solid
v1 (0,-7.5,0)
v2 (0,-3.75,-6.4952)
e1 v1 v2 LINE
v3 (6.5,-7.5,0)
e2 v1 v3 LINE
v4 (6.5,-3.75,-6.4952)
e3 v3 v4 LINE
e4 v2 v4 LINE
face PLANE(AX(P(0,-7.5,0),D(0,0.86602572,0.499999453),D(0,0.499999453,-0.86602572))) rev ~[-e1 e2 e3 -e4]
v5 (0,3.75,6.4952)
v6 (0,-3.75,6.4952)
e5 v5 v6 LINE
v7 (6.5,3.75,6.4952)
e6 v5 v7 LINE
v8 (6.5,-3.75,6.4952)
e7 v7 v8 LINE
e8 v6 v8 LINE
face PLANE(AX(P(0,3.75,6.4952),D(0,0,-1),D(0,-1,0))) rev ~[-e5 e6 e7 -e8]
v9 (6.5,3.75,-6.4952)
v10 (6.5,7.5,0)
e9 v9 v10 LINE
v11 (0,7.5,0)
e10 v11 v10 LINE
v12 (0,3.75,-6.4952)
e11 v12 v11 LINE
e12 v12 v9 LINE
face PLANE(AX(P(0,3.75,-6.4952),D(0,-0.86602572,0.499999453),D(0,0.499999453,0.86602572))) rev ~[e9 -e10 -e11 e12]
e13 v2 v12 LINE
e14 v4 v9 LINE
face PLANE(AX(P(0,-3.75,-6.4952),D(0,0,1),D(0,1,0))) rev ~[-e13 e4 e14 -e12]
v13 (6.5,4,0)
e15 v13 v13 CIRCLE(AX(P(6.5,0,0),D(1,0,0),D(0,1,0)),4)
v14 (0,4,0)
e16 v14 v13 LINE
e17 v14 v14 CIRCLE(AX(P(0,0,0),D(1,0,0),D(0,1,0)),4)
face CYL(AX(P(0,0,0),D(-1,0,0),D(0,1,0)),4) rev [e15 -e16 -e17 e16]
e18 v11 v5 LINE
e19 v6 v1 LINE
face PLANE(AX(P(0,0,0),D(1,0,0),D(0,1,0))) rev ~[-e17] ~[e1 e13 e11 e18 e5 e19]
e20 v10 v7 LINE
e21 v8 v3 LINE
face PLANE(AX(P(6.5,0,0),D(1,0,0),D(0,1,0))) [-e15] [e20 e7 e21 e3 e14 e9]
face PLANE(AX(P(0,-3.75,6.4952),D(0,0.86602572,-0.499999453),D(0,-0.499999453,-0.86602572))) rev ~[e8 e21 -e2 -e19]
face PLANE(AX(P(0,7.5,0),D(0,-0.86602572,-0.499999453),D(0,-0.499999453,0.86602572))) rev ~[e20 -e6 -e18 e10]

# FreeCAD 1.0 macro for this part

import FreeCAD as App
import Part
import Sketcher
from FreeCAD import Vector
Q = App.Units.Quantity


def add_polygon(sketch, points):
    """Adds a closed chain of lines whose ends are joined by coincident constraints."""
    first, n = sketch.GeometryCount, len(points)
    for a, b in zip(points, points[1:] + points[:1]):
        sketch.addGeometry(Part.LineSegment(App.Vector(*a, 0), App.Vector(*b, 0)), False)
    for i in range(n):
        sketch.addConstraint(Sketcher.Constraint("Coincident", first + i, 2, first + (i + 1) % n, 1))

doc = App.newDocument("Part")
body = doc.addObject("PartDesign::Body", "Body")

# Sketch on YZ plane
sketch1 = doc.addObject("Sketcher::SketchObject", "Sketch")
body.addObject(sketch1)
sketch1.AttachmentSupport = (doc.YZ_Plane, [""])
sketch1.MapMode = "FlatFace"
add_polygon(sketch1, [(3.8, -6.5), (7.5, 0), (3.8, 6.5), (-3.8, 6.5), (-7.5, 0), (-3.8, -6.5)])  # lines 0-5
sketch1.addGeometry(Part.Circle(Vector(0, 0, 0), Vector(0, 0, 1), 4), False)  # 6
sketch1.addConstraint(Sketcher.Constraint("Horizontal", 2))
sketch1.addConstraint(Sketcher.Constraint("Horizontal", 5))
sketch1.addConstraint(Sketcher.Constraint("Coincident", 6, 3, -1, 1))
sketch1.addConstraint(Sketcher.Constraint("Symmetric", 0, 2, 3, 2, -1, 1))
sketch1.addConstraint(Sketcher.Constraint("Symmetric", 1, 2, 4, 2, -1, 1))
sketch1.addConstraint(Sketcher.Constraint("PointOnObject", 0, 2, -1))
sketch1.addConstraint(Sketcher.Constraint("Parallel", 0, 3))
sketch1.addConstraint(Sketcher.Constraint("Vertical", 2, 2, 4, 2))
sketch1.addConstraint(Sketcher.Constraint("Diameter", 6, Q("8 mm")))
sketch1.addConstraint(Sketcher.Constraint("DistanceX", 3, 2, 0, 2, Q("15 mm")))
sketch1.addConstraint(Sketcher.Constraint("Angle", 0, Q("60 deg")))
sketch1.addConstraint(Sketcher.Constraint("DistanceX", 2, 2, 2, 1, Q("7.5 mm")))
pad1 = doc.addObject("PartDesign::Pad", "Pad")
body.addObject(pad1)
pad1.Profile = sketch1
pad1.Length = 6.5

doc.recompute()
